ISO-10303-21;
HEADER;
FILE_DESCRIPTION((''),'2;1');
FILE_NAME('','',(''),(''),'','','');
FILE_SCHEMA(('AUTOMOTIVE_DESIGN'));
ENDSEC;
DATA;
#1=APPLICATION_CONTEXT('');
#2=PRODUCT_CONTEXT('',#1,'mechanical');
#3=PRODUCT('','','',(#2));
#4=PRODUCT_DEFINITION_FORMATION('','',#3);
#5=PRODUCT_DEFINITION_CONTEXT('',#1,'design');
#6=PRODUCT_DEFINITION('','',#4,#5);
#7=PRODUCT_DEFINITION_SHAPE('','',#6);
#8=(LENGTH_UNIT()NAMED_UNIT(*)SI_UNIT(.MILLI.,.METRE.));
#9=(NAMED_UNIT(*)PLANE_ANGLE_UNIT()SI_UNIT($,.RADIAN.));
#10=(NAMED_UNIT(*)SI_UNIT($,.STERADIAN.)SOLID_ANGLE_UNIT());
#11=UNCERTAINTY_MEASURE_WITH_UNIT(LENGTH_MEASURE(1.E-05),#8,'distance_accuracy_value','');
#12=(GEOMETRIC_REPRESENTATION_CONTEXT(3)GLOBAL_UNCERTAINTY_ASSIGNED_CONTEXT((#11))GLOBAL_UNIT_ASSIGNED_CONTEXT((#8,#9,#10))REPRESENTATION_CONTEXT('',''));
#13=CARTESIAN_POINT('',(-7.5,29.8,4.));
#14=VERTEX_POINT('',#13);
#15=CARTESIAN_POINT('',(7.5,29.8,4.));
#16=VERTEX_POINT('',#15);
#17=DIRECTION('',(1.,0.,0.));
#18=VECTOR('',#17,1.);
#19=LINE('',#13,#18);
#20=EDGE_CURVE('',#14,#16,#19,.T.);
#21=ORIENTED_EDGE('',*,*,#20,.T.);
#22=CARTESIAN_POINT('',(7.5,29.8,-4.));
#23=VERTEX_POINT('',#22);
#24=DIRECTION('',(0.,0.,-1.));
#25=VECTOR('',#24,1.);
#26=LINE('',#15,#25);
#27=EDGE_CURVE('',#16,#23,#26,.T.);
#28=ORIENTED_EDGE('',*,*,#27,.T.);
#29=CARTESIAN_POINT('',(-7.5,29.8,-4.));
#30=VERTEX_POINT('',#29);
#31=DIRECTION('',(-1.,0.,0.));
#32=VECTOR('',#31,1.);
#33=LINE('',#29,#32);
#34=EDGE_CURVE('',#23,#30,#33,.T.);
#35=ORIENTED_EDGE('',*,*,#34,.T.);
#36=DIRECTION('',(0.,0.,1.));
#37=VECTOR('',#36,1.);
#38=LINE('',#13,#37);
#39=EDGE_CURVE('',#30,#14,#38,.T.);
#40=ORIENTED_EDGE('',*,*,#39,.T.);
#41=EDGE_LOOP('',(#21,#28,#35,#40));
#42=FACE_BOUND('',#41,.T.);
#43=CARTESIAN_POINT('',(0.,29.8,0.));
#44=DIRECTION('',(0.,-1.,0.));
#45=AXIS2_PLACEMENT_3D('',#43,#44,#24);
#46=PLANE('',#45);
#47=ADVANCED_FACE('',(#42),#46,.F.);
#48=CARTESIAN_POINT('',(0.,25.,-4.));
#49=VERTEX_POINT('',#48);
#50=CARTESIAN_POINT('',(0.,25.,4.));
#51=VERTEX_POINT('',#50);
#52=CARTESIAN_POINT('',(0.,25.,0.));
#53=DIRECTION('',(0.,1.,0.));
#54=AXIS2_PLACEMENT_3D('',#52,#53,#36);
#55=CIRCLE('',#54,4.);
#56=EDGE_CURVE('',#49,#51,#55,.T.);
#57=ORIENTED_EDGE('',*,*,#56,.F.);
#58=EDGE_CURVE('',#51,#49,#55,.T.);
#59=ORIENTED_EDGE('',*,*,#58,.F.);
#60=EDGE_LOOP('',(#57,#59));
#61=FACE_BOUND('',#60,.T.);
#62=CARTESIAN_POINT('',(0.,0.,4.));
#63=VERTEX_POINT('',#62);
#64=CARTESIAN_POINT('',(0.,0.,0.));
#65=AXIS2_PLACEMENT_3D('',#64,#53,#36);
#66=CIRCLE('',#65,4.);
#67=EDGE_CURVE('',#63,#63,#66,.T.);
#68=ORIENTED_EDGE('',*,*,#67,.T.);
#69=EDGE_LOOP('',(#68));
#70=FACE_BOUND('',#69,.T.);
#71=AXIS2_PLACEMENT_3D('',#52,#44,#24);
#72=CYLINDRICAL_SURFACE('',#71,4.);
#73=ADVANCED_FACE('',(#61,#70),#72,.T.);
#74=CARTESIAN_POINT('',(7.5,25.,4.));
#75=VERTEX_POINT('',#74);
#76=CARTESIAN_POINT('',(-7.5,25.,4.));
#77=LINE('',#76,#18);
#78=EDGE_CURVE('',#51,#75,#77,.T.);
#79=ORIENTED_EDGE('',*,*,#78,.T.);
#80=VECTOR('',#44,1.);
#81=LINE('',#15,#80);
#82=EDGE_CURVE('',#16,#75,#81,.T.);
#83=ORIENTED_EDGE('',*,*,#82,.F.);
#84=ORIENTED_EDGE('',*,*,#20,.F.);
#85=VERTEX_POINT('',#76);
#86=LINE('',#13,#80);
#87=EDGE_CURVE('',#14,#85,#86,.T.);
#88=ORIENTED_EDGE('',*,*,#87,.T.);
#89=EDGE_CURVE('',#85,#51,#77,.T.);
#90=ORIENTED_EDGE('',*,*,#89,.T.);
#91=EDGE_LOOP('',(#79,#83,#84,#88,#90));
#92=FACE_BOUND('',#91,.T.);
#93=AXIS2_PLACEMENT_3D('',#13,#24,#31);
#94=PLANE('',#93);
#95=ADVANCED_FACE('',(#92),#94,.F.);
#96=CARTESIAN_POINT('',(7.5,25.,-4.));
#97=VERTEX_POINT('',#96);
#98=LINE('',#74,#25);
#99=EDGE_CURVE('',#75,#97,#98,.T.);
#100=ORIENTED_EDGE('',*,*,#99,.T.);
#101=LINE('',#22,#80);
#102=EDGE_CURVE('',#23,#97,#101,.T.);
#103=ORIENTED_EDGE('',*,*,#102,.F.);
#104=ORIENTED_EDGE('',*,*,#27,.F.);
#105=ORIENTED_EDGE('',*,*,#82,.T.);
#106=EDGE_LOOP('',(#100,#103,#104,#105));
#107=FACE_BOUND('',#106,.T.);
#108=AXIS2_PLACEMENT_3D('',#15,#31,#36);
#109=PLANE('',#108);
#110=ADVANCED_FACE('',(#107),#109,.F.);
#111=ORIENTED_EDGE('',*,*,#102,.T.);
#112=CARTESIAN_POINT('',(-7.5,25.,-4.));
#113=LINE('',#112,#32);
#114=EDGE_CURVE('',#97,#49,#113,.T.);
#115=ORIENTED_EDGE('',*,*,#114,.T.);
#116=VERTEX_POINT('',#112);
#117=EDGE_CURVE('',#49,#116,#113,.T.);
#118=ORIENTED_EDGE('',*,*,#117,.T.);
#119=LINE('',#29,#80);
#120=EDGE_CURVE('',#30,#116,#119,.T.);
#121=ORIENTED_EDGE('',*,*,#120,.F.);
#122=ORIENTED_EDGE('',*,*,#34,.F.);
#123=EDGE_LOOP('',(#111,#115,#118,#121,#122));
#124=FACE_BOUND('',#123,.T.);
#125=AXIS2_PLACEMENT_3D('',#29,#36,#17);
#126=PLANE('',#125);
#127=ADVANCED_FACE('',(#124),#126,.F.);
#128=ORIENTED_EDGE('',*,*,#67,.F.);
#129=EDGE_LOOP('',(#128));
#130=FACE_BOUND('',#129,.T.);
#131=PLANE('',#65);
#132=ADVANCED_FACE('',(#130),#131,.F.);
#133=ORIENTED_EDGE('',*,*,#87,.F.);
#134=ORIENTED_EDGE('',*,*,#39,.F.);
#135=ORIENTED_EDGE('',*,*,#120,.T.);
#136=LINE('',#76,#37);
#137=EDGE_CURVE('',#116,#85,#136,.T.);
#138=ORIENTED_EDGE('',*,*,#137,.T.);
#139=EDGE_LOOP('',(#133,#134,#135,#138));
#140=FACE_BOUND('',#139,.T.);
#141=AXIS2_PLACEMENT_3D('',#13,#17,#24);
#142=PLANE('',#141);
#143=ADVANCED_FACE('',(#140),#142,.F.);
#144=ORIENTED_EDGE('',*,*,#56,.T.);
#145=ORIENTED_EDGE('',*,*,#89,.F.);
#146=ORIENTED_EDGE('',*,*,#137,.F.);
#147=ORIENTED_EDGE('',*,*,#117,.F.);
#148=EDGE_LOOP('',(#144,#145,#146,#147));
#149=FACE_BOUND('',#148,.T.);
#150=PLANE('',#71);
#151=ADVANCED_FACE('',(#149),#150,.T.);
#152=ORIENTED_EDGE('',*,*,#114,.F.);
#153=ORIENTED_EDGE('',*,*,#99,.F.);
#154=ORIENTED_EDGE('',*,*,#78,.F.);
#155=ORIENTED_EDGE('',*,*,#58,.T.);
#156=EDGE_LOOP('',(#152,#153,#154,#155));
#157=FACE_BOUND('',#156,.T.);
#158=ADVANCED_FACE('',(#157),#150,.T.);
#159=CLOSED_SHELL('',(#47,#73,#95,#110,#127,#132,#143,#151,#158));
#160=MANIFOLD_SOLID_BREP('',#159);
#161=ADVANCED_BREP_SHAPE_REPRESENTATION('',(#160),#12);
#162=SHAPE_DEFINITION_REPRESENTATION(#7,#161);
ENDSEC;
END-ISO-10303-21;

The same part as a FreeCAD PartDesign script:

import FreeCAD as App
import Part
import Sketcher
from FreeCAD import Vector
Q = App.Units.Quantity


def add_polygon(sketch, points):
    """Adds a closed chain of lines whose ends are joined by coincident constraints."""
    first, n = sketch.GeometryCount, len(points)
    for a, b in zip(points, points[1:] + points[:1]):
        sketch.addGeometry(Part.LineSegment(App.Vector(*a, 0), App.Vector(*b, 0)), False)
    for i in range(n):
        sketch.addConstraint(Sketcher.Constraint("Coincident", first + i, 2, first + (i + 1) % n, 1))

doc = App.newDocument("Part")
body = doc.addObject("PartDesign::Body", "Body")

# Sketch on XZ plane
sketch1 = body.newObject("Sketcher::SketchObject", "Sketch")
sketch1.AttachmentSupport = (doc.getObject("XZ_Plane"), [""])
sketch1.MapMode = "FlatFace"
sketch1.addGeometry(Part.Circle(Vector(0, 0, 0), Vector(0, 0, 1), 4), False)
sketch1.addConstraint(Sketcher.Constraint("Coincident", 0, 3, -1, 1))
sketch1.addConstraint(Sketcher.Constraint("Diameter", 0, Q("8 mm")))
pad1 = body.newObject("PartDesign::Pad", "Pad")
pad1.Profile = sketch1
pad1.Length = 25
pad1.Reversed = True

# Sketch on XZ plane
sketch2 = body.newObject("Sketcher::SketchObject", "Sketch001")
sketch2.AttachmentSupport = (doc.getObject("XZ_Plane"), [""])
sketch2.MapMode = "FlatFace"
sketch2.AttachmentOffset = App.Placement(Vector(0, 0, -25), App.Rotation())
add_polygon(sketch2, [(-8, -4), (-8, 4), (8, 4), (8, -4)])  # lines 0-3
sketch2.addConstraint(Sketcher.Constraint("Vertical", 0))
sketch2.addConstraint(Sketcher.Constraint("Horizontal", 1))
sketch2.addConstraint(Sketcher.Constraint("Vertical", 2))
sketch2.addConstraint(Sketcher.Constraint("Horizontal", 3))
sketch2.addConstraint(Sketcher.Constraint("Symmetric", 0, 2, 2, 2, -1, 1))
sketch2.addConstraint(Sketcher.Constraint("DistanceX", 1, 1, 1, 2, Q("15 mm")))
sketch2.addConstraint(Sketcher.Constraint("DistanceY", 0, 1, 0, 2, Q("8 mm")))
pad2 = body.newObject("PartDesign::Pad", "Pad001")
pad2.Profile = sketch2
pad2.Length = 4.8
pad2.Reversed = True

doc.recompute()
